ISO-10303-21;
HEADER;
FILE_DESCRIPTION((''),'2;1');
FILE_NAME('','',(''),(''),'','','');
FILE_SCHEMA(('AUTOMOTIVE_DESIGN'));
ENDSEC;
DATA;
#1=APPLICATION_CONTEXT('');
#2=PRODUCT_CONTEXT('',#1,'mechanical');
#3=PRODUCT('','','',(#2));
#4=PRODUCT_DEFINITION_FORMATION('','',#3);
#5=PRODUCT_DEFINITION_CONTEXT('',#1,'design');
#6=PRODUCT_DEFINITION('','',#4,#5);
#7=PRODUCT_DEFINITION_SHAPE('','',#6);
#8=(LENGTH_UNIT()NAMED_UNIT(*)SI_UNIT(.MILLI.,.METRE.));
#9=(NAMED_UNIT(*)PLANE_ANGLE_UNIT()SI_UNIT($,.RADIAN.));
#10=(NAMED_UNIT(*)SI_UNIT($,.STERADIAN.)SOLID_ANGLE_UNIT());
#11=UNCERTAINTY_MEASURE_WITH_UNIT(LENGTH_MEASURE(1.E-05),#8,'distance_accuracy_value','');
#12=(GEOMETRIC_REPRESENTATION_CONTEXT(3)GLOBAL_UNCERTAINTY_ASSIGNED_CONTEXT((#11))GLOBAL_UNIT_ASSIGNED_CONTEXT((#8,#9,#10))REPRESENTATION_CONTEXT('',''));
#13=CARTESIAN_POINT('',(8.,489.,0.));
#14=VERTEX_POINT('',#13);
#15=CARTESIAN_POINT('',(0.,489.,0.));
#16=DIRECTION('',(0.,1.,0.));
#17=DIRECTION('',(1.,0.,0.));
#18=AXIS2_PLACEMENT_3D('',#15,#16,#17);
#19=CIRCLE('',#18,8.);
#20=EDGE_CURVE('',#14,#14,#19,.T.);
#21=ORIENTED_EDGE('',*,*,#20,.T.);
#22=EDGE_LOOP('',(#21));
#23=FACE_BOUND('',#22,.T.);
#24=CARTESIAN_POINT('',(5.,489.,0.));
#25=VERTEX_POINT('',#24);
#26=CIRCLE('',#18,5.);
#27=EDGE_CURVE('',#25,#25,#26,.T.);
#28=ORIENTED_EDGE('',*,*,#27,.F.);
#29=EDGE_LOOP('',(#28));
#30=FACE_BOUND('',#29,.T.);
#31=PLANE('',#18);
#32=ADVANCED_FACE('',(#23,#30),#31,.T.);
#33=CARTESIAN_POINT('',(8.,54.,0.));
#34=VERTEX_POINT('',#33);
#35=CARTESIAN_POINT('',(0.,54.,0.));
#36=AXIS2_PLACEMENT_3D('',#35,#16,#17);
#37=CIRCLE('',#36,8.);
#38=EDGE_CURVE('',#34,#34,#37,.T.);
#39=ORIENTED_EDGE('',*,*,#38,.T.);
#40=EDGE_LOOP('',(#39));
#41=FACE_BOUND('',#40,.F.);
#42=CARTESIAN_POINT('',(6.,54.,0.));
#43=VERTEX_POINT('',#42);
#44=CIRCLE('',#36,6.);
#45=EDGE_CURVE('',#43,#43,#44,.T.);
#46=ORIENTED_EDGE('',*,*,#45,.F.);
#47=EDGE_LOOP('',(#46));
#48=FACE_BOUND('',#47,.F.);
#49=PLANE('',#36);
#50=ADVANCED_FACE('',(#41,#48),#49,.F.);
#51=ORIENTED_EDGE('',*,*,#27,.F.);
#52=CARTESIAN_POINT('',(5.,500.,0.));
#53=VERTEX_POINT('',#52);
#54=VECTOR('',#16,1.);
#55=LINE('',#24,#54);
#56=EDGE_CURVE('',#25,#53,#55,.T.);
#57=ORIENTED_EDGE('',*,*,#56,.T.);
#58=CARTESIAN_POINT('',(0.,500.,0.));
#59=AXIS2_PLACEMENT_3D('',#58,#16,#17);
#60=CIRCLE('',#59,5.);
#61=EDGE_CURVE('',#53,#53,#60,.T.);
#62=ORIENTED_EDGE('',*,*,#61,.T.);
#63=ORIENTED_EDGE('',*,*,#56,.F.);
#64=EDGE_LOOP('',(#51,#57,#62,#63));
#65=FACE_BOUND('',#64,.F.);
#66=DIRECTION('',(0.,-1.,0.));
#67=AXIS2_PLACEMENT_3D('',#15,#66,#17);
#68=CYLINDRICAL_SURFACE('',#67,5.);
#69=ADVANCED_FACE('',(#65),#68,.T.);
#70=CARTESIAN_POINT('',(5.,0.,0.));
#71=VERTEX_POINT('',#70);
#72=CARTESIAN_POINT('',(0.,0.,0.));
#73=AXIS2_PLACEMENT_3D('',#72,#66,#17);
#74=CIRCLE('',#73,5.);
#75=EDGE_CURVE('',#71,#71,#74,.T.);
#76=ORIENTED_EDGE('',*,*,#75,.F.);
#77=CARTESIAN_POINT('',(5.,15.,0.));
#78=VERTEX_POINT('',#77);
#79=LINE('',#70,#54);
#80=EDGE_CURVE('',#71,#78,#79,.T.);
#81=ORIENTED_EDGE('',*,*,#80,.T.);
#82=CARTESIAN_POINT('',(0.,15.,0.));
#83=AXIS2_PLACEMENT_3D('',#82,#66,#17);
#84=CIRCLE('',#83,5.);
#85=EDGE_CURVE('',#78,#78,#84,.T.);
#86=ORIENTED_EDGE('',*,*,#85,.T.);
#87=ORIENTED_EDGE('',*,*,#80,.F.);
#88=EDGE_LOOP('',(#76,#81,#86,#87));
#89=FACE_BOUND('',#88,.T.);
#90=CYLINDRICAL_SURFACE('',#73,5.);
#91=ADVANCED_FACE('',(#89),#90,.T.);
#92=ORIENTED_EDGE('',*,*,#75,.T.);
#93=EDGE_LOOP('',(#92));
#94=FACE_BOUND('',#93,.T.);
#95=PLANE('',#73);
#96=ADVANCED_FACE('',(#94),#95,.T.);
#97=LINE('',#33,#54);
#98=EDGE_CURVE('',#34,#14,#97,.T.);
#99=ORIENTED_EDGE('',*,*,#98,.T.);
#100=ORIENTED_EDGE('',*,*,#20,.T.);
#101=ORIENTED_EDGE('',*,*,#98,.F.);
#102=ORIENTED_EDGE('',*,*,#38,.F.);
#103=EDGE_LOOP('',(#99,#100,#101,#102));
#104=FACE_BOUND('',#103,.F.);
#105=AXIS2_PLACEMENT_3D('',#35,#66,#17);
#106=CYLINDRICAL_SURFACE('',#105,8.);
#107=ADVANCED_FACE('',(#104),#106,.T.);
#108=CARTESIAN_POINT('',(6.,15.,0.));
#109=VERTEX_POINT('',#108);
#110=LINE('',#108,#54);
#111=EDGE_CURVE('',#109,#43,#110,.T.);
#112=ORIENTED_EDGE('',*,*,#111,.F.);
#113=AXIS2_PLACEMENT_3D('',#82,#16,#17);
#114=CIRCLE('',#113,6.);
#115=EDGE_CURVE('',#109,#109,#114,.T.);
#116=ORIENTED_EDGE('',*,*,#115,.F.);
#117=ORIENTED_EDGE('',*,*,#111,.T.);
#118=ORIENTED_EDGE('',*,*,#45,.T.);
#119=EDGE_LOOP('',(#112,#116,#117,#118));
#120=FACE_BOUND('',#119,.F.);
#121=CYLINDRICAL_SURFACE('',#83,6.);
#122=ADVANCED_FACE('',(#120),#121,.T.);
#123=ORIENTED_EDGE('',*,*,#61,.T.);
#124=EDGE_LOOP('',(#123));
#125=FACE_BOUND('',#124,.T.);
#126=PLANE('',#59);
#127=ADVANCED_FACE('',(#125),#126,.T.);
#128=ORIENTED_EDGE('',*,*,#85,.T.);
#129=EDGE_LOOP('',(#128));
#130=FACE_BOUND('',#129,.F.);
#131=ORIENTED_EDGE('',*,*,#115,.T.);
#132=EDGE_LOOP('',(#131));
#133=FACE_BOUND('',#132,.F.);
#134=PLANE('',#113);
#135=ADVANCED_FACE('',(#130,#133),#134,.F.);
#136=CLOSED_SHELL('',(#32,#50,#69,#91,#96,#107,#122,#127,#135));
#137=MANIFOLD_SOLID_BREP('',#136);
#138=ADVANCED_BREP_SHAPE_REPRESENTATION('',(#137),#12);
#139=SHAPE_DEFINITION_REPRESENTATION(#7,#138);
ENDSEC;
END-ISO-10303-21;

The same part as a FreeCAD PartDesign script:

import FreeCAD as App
import Part
import Sketcher
from FreeCAD import Vector
Q = App.Units.Quantity

doc = App.newDocument("Part")
body = doc.addObject("PartDesign::Body", "Body")

sketch1 = doc.addObject("Sketcher::SketchObject", "Sketch")
body.addObject(sketch1)
sketch1.AttachmentSupport = (doc.XZ_Plane, [""])
sketch1.MapMode = "FlatFace"
sketch1.addGeometry(Part.Circle(Vector(0, 0, 0), Vector(0, 0, 1), 5), False)
sketch1.addConstraint([
    Sketcher.Constraint("Coincident", 0, 3, -1, 1),
    Sketcher.Constraint("Diameter", 0, Q("10 mm")),
])
pad1 = doc.addObject("PartDesign::Pad", "Pad")
body.addObject(pad1)
pad1.Profile = sketch1
pad1.Length = 15
pad1.Reversed = True

sketch2 = doc.addObject("Sketcher::SketchObject", "Sketch001")
body.addObject(sketch2)
sketch2.AttachmentSupport = (doc.XZ_Plane, [""])
sketch2.MapMode = "FlatFace"
sketch2.AttachmentOffset = App.Placement(Vector(0, 0, -15), App.Rotation())
sketch2.addGeometry(Part.Circle(Vector(0, 0, 0), Vector(0, 0, 1), 6), False)
sketch2.addConstraint([
    Sketcher.Constraint("Coincident", 0, 3, -1, 1),
    Sketcher.Constraint("Diameter", 0, Q("12 mm")),
])
pad2 = doc.addObject("PartDesign::Pad", "Pad001")
body.addObject(pad2)
pad2.Profile = sketch2
pad2.Length = 39
pad2.Reversed = True

sketch3 = doc.addObject("Sketcher::SketchObject", "Sketch002")
body.addObject(sketch3)
sketch3.AttachmentSupport = (doc.XZ_Plane, [""])
sketch3.MapMode = "FlatFace"
sketch3.AttachmentOffset = App.Placement(Vector(0, 0, -54), App.Rotation())
sketch3.addGeometry(Part.Circle(Vector(0, 0, 0), Vector(0, 0, 1), 8), False)
sketch3.addConstraint([
    Sketcher.Constraint("Coincident", 0, 3, -1, 1),
    Sketcher.Constraint("Diameter", 0, Q("16 mm")),
])
pad3 = doc.addObject("PartDesign::Pad", "Pad002")
body.addObject(pad3)
pad3.Profile = sketch3
pad3.Length = 435
pad3.Reversed = True

sketch4 = doc.addObject("Sketcher::SketchObject", "Sketch003")
body.addObject(sketch4)
sketch4.AttachmentSupport = (doc.XZ_Plane, [""])
sketch4.MapMode = "FlatFace"
sketch4.AttachmentOffset = App.Placement(Vector(0, 0, -489), App.Rotation())
sketch4.addGeometry(Part.Circle(Vector(0, 0, 0), Vector(0, 0, 1), 5), False)
sketch4.addConstraint([
    Sketcher.Constraint("Coincident", 0, 3, -1, 1),
    Sketcher.Constraint("Diameter", 0, Q("10 mm")),
])
pad4 = doc.addObject("PartDesign::Pad", "Pad003")
body.addObject(pad4)
pad4.Profile = sketch4
pad4.Length = 11
pad4.Reversed = True

doc.recompute()
